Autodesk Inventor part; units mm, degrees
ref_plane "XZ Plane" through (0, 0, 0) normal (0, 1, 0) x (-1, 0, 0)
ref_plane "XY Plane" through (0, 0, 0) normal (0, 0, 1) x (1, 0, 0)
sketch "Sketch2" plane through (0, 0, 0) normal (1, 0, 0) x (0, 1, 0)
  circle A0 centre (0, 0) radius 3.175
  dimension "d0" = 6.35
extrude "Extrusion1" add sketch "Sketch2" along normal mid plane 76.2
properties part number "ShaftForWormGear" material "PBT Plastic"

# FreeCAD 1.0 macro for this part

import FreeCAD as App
import Part
import Sketcher

V = App.Vector
Q = App.Units.Quantity

doc = App.newDocument("Part")
body = doc.addObject("PartDesign::Body", "Body")

# Sketch on YZ plane
sketch1 = body.newObject("Sketcher::SketchObject", "Sketch")
sketch1.AttachmentSupport = (doc.getObject("YZ_Plane"), [""])
sketch1.MapMode = "FlatFace"
sketch1.addGeometry(Part.Circle(V(0, 0, 0), V(0, 0, 1), 3.2), False)
sketch1.addConstraint(Sketcher.Constraint("Coincident", 0, 3, -1, 1))
sketch1.addConstraint(Sketcher.Constraint("Diameter", 0, Q("0.25 in")))
pad1 = body.newObject("PartDesign::Pad", "Pad")
pad1.Profile = sketch1
pad1.Length = Q("3 in")
pad1.Midplane = True

doc.recompute()
